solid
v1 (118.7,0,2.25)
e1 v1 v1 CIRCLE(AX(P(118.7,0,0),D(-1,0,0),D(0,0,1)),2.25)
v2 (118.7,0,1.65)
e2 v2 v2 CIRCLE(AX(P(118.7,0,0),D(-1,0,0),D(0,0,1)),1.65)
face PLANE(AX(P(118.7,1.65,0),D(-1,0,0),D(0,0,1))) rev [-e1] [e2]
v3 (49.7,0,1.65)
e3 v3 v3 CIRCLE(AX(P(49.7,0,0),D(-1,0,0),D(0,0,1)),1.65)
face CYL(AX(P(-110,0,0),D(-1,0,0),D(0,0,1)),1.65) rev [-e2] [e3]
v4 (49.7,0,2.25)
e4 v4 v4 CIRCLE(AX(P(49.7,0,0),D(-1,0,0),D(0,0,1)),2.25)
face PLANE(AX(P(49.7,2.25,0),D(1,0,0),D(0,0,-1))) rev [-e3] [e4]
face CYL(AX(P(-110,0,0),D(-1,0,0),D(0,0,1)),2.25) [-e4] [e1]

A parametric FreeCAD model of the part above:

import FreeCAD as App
import Part
import Sketcher


def add_polygon(sketch, points):
    """Adds a closed chain of lines whose ends are joined by coincident constraints."""
    first, n = sketch.GeometryCount, len(points)
    for a, b in zip(points, points[1:] + points[:1]):
        sketch.addGeometry(Part.LineSegment(App.Vector(*a, 0), App.Vector(*b, 0)), False)
    for i in range(n):
        sketch.addConstraint(Sketcher.Constraint("Coincident", first + i, 2, first + (i + 1) % n, 1))

doc = App.newDocument("Part")
params = doc.addObject("Spreadsheet::Sheet", "Params")
for row, (alias, value) in enumerate([
    ("sketch1_width", "69 mm"),
    ("sketch1_height", "0.6 mm"),
    ("revolution_angle", "360 deg"),
], start=1):
    params.set(f"A{row}", alias)
    params.set(f"B{row}", "=" + value)
    params.setAlias(f"B{row}", alias)

body = doc.addObject("PartDesign::Body", "Body")

sketch1 = body.newObject("Sketcher::SketchObject", "Sketch")
sketch1.AttachmentSupport = (doc.getObject("XY_Plane"), [""])
sketch1.MapMode = "FlatFace"
add_polygon(sketch1, [(49.7, 2.2), (49.7, 1.6), (118.7, 1.6), (118.7, 2.2)])
sketch1.addConstraint([
    Sketcher.Constraint("Vertical", 0),
    Sketcher.Constraint("Horizontal", 1),
    Sketcher.Constraint("Vertical", 2),
    Sketcher.Constraint("Horizontal", 3),
    Sketcher.Constraint("DistanceX", 1, 1, 1, 2, 69.0),
    Sketcher.Constraint("DistanceY", 0, 2, 0, 1, 0.6),
    Sketcher.Constraint("DistanceX", -1, 1, 0, 2, 49.7),
    Sketcher.Constraint("DistanceY", -1, 1, 0, 2, 1.65),
])
sketch1.setExpression("Constraints[8]", "Params.sketch1_width")
sketch1.setExpression("Constraints[9]", "Params.sketch1_height")
revolution = body.newObject("PartDesign::Revolution", "Revolution")
revolution.Profile = sketch1
revolution.ReferenceAxis = (sketch1, ["H_Axis"])
revolution.setExpression("Angle", "Params.revolution_angle")

doc.recompute()
